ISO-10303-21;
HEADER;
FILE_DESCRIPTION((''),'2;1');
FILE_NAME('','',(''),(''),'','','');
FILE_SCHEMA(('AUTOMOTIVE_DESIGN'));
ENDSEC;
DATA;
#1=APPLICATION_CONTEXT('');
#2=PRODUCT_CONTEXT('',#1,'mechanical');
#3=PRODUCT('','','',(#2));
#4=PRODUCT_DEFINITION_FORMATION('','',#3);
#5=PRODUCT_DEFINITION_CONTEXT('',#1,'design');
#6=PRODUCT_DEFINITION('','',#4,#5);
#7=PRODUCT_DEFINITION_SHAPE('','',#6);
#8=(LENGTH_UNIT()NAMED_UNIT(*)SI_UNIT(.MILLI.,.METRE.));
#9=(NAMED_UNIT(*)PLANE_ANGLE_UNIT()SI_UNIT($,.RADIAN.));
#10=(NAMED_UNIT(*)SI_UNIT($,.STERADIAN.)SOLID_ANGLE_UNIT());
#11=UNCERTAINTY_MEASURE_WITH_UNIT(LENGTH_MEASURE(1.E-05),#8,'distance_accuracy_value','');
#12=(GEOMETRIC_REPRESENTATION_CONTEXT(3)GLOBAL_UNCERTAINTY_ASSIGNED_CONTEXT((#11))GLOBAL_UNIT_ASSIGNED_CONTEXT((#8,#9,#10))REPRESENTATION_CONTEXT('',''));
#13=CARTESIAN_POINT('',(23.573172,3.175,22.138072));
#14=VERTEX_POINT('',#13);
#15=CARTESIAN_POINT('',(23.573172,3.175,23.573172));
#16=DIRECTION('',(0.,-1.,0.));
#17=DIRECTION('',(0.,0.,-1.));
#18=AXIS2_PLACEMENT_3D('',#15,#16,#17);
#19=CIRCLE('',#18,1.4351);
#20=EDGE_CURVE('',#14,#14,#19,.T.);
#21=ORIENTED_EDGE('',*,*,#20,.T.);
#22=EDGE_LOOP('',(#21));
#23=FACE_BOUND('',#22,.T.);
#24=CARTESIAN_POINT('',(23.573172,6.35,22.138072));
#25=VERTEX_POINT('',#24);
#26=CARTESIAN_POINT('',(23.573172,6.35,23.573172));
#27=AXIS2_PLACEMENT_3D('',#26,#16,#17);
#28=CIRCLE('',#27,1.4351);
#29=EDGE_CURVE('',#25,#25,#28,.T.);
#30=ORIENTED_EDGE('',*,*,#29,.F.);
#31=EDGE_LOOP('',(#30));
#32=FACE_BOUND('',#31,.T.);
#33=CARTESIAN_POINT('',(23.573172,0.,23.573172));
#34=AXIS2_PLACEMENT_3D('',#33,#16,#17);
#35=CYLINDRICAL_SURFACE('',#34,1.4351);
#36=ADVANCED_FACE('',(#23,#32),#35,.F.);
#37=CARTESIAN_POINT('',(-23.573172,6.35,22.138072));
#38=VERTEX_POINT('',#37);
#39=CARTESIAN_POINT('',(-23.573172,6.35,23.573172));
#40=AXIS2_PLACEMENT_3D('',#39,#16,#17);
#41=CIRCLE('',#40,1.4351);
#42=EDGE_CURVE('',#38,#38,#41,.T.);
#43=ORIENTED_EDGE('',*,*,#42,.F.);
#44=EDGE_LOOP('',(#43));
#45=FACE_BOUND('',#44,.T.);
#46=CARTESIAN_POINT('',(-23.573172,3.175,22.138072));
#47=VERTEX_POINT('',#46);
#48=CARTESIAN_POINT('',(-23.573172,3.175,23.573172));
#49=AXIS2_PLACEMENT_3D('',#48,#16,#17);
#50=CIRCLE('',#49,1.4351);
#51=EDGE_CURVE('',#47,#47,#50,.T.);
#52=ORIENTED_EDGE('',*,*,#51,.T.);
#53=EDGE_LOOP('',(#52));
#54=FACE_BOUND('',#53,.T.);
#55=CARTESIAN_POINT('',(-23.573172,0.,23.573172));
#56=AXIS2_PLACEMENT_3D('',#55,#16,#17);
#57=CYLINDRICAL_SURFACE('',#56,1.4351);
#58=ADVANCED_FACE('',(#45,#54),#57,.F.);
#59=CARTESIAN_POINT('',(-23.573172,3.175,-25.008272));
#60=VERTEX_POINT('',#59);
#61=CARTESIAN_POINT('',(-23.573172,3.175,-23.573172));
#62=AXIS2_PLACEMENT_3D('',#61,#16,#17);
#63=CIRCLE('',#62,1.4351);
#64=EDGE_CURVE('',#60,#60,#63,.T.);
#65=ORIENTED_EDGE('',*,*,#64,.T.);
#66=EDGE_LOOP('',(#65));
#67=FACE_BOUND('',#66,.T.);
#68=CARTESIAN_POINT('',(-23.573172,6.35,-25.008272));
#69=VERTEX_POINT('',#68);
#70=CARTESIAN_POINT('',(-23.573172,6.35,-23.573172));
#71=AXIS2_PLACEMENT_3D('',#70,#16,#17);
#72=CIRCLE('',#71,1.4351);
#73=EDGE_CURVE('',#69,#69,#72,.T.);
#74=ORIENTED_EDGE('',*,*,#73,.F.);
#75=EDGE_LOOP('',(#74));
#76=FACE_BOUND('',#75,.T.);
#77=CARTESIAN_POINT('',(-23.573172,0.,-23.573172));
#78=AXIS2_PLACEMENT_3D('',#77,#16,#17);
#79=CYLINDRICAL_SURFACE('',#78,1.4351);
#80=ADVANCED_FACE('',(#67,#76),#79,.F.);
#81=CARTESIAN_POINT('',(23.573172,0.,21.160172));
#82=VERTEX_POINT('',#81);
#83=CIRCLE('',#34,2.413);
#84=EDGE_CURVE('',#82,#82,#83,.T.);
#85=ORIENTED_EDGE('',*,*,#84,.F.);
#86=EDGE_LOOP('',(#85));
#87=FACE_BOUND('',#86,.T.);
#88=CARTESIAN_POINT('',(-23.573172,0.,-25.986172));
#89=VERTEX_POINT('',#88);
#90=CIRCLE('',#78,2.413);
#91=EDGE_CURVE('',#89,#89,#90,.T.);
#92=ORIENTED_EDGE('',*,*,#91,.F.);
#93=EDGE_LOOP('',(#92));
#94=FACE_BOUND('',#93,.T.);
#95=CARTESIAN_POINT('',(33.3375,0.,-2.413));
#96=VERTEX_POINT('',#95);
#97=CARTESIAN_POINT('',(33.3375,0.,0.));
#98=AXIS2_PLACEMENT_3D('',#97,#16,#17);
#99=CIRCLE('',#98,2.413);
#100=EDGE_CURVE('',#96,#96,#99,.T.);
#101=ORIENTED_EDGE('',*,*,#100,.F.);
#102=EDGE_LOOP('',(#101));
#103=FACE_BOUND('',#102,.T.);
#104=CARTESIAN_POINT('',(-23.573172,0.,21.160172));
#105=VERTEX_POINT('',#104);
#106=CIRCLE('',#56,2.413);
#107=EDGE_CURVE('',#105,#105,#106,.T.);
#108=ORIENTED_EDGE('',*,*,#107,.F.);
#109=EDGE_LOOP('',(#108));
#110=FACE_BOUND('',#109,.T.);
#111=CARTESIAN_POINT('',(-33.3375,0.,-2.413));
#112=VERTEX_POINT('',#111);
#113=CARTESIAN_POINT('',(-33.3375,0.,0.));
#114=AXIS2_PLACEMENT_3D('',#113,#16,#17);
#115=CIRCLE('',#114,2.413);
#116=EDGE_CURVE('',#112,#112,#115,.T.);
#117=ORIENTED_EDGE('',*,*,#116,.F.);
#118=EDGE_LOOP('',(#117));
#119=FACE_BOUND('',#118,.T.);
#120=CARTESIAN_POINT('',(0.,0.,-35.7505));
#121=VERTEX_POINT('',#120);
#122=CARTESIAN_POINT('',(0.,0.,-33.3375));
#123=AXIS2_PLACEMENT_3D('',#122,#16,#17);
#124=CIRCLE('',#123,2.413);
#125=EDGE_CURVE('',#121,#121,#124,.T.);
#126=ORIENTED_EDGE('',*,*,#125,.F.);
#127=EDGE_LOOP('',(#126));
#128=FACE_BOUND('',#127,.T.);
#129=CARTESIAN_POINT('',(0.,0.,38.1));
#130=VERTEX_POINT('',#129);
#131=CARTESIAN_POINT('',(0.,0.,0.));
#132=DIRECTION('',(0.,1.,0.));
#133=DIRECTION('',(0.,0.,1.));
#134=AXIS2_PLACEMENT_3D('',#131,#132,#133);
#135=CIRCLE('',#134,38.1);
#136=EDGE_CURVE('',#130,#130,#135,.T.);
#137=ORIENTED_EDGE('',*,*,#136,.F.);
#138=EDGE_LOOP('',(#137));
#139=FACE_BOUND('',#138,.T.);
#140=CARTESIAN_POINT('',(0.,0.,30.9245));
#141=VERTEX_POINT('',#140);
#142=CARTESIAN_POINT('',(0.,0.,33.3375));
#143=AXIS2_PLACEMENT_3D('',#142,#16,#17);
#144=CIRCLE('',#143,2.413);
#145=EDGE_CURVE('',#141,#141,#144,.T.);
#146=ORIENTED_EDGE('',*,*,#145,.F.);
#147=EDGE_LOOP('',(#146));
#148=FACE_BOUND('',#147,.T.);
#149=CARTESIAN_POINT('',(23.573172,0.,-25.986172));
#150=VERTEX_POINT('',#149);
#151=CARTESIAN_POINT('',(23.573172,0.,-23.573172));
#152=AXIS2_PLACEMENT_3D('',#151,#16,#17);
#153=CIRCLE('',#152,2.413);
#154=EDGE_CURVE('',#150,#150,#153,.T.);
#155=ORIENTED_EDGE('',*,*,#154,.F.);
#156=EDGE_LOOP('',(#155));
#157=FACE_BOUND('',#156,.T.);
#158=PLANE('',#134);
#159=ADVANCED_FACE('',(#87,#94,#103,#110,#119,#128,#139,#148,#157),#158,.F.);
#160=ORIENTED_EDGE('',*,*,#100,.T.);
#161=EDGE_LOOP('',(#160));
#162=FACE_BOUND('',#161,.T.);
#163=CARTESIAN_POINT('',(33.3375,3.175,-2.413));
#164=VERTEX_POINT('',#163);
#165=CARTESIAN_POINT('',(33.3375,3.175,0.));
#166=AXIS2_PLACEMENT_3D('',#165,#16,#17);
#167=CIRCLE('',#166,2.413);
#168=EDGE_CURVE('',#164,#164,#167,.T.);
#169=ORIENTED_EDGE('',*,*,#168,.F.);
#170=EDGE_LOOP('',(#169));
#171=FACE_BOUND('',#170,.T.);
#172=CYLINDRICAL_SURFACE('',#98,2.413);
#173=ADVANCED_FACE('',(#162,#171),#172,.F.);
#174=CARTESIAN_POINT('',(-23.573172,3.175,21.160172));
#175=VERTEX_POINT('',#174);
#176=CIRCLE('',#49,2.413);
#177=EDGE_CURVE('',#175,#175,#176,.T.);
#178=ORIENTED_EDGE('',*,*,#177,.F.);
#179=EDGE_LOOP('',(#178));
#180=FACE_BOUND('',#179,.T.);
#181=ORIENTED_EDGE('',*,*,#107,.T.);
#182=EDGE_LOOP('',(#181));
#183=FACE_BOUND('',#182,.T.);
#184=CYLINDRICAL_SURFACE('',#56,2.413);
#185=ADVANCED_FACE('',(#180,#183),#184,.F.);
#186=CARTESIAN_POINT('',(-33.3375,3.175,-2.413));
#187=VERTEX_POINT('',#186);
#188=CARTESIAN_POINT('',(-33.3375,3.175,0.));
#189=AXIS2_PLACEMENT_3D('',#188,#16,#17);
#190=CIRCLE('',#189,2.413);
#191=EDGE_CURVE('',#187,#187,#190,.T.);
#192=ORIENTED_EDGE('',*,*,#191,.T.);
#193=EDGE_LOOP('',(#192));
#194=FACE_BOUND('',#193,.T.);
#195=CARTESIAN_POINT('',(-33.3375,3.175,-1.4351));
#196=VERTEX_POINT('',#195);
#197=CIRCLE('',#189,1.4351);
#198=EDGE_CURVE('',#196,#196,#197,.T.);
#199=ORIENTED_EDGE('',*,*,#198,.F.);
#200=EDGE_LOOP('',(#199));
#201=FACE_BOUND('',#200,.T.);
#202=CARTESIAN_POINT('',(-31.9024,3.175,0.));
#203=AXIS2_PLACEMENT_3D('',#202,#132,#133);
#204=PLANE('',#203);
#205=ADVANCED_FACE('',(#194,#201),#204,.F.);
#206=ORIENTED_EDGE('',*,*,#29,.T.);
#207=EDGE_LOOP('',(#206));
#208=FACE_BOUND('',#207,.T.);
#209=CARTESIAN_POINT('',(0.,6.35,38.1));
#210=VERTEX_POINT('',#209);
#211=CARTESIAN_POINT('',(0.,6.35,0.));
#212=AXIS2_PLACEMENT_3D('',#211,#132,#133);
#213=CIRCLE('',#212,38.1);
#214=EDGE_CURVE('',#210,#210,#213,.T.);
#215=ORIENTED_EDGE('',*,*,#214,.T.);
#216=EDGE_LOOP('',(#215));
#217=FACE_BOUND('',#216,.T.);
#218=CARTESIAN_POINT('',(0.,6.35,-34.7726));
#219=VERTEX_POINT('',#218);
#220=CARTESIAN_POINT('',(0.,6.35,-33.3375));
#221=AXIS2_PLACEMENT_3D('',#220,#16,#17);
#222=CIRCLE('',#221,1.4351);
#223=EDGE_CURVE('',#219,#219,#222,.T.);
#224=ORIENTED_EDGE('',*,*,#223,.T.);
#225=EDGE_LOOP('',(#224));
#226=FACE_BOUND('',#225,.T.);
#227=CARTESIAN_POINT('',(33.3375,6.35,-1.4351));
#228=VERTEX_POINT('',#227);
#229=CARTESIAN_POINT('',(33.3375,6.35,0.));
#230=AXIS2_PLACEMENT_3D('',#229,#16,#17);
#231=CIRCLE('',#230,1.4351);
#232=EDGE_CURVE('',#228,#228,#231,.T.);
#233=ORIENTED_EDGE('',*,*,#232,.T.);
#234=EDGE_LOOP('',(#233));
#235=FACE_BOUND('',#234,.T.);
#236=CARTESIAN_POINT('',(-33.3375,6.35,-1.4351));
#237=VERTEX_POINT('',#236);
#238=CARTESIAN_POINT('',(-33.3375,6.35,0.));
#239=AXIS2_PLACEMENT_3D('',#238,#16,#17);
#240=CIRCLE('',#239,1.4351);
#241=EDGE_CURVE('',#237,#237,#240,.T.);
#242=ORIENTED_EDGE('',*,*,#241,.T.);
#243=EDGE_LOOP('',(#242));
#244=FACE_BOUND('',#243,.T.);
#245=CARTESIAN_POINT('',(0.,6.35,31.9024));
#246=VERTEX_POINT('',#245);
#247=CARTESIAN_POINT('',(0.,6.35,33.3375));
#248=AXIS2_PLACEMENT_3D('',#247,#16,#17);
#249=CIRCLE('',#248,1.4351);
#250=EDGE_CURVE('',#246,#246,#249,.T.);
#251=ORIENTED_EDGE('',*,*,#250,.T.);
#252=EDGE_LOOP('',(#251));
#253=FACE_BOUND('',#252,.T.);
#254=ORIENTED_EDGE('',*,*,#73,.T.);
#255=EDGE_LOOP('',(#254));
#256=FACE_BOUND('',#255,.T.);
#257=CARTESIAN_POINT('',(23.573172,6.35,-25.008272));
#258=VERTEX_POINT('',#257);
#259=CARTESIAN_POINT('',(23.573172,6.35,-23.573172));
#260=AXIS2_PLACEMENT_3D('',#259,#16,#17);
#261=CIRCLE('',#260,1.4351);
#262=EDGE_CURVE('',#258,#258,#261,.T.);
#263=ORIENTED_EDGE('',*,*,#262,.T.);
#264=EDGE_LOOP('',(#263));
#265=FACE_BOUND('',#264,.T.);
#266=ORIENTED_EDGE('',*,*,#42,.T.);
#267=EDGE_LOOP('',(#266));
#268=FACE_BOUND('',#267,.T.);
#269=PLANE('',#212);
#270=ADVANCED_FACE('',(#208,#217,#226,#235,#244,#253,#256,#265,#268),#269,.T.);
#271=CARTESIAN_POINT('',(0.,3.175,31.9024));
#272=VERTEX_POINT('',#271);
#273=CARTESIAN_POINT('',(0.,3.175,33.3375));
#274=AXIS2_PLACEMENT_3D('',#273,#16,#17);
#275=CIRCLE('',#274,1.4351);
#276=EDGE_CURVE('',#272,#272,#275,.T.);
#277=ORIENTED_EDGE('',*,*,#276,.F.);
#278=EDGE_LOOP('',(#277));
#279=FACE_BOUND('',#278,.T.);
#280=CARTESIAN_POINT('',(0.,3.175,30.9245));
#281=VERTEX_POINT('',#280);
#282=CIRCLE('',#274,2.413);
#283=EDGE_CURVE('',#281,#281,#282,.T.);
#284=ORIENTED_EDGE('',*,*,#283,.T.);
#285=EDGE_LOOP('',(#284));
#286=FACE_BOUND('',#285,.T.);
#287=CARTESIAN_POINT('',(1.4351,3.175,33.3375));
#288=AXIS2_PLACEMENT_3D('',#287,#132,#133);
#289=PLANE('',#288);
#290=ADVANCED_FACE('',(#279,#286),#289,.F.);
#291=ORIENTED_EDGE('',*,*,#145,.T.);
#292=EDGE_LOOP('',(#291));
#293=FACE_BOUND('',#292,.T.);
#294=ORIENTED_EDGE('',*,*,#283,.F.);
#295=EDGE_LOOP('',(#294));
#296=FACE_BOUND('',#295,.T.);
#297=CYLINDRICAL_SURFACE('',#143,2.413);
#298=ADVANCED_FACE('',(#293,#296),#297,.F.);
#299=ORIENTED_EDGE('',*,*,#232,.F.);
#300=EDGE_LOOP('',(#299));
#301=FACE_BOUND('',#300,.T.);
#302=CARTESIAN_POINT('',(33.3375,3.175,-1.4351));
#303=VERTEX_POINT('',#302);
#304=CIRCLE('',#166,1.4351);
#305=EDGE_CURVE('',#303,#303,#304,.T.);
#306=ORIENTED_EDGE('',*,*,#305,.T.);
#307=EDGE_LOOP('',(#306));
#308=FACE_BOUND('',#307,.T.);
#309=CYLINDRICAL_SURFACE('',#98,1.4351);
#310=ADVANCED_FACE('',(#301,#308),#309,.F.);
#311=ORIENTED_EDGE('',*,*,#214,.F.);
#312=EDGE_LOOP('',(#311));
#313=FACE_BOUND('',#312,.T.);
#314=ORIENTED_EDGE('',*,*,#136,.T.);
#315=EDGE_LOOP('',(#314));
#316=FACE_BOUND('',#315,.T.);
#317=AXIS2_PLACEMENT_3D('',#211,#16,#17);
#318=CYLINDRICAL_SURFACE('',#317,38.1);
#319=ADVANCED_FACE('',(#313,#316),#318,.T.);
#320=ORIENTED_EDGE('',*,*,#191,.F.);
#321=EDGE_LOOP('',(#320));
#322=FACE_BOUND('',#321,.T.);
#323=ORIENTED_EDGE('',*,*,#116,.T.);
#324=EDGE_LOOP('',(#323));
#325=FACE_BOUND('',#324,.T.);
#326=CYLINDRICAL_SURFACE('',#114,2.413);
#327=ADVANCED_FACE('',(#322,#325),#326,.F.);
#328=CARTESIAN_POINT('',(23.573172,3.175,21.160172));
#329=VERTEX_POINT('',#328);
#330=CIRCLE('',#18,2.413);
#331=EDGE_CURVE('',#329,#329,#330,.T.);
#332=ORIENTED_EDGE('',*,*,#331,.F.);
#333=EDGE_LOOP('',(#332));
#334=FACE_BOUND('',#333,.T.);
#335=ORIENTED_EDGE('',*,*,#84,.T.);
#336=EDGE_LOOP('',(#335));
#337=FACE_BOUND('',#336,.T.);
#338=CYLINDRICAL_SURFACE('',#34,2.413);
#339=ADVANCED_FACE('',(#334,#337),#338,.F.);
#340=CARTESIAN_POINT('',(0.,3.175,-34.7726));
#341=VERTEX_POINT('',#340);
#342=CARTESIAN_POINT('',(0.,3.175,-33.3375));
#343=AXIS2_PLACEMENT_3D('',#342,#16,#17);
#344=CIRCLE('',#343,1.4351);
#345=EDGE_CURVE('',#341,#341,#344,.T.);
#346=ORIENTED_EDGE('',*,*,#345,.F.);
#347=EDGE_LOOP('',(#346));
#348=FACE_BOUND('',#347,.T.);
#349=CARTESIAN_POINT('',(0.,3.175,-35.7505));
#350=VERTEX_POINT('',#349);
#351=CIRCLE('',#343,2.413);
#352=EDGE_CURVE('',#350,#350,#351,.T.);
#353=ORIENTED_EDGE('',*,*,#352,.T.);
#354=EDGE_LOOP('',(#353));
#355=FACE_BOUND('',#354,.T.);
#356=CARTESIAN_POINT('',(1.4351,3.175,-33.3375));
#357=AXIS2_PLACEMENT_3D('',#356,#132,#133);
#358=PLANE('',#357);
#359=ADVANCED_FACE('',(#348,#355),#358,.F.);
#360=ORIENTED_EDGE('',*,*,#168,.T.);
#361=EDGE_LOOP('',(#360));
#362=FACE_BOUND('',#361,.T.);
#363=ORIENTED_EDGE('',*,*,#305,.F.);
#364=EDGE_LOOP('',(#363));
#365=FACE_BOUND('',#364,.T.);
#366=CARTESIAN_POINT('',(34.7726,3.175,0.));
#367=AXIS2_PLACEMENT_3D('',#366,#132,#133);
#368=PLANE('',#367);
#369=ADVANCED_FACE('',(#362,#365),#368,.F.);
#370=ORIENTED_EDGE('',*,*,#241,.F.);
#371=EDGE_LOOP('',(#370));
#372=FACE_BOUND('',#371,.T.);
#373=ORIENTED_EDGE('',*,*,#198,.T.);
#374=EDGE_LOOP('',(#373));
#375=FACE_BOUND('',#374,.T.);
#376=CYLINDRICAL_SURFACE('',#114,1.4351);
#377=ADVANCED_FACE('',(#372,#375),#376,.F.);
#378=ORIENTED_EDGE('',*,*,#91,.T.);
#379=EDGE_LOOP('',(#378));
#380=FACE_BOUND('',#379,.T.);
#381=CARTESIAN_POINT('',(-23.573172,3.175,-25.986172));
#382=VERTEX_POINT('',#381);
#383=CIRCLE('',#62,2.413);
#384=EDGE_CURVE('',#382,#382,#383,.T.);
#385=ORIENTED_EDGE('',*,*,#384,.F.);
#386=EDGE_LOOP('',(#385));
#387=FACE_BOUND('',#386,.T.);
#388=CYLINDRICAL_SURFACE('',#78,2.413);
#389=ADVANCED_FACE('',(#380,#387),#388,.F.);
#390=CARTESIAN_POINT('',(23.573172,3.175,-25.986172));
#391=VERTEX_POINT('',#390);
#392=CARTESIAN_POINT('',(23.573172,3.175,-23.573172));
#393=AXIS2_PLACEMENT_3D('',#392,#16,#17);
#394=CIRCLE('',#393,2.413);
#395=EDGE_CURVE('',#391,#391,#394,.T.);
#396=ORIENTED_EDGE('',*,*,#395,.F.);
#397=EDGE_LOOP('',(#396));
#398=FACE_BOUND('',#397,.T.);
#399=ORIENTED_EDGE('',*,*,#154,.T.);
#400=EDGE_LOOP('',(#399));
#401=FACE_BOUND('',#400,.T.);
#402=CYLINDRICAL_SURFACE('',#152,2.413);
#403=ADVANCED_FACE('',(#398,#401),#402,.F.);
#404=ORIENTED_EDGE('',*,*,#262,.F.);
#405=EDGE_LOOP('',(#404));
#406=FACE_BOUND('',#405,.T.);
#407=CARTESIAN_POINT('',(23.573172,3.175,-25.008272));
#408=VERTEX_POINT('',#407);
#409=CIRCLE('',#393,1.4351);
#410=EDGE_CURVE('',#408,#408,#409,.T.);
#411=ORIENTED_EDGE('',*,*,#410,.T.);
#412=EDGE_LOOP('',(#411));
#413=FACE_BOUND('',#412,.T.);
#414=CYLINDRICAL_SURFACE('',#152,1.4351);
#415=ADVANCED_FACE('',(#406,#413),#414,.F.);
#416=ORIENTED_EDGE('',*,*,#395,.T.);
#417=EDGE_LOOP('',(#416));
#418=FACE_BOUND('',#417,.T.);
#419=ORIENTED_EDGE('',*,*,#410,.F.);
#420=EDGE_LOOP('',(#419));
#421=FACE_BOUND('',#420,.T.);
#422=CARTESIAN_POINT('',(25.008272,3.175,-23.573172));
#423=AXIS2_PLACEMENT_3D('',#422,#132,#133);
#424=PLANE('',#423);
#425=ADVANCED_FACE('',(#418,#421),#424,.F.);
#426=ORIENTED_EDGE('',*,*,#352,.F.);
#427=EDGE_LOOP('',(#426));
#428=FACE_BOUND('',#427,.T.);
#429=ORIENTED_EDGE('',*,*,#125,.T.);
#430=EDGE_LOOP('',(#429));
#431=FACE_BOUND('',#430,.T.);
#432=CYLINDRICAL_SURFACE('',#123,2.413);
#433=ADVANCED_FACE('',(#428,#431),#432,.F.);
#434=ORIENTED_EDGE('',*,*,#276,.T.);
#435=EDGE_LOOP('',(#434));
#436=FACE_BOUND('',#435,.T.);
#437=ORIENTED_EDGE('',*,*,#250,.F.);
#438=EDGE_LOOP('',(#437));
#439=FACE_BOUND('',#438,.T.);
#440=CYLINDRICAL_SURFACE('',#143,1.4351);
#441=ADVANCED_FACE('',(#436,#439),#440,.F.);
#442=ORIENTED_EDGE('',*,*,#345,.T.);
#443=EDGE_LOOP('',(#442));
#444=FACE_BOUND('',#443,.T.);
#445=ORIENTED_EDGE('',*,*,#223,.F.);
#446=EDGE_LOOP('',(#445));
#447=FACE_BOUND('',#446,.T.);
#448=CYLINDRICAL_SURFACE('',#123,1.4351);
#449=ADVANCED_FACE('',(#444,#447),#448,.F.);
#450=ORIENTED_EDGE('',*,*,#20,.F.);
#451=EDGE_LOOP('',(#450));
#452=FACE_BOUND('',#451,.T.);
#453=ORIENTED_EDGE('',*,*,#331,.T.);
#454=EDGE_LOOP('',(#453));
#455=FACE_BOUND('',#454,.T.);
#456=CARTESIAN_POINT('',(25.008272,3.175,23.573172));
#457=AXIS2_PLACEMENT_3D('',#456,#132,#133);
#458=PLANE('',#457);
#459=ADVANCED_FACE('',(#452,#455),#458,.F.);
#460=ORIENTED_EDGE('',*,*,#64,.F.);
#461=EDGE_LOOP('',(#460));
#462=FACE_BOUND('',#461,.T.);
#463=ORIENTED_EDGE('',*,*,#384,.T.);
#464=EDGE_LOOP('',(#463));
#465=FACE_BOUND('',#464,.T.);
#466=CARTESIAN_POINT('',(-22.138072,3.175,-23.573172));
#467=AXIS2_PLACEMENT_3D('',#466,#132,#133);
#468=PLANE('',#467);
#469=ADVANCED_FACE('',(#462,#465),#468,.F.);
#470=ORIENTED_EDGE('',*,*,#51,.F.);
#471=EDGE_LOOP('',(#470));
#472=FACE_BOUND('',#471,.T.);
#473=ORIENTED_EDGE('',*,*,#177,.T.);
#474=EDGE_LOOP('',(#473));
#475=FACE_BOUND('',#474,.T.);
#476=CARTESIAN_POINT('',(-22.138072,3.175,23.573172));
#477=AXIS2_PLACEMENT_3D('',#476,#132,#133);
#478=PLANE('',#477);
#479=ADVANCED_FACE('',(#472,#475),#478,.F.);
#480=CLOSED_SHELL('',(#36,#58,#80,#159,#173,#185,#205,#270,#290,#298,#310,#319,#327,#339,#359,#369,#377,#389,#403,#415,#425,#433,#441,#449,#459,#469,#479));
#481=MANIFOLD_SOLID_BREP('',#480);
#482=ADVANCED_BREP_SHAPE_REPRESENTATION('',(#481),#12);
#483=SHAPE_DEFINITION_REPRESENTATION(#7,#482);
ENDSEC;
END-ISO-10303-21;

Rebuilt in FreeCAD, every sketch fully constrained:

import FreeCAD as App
import Part
import Sketcher
from FreeCAD import Vector
Q = App.Units.Quantity

doc = App.newDocument("Part")
body = doc.addObject("PartDesign::Body", "Body")

sketch1 = body.newObject("Sketcher::SketchObject", "Sketch")
sketch1.AttachmentSupport = (doc.getObject("XZ_Plane"), [""])
sketch1.MapMode = "FlatFace"
sketch1.addGeometry(Part.Circle(Vector(0, 0, 0), Vector(0, 0, 1), 38), False)
sketch1.addConstraint(Sketcher.Constraint("Coincident", 0, 3, -1, 1))
sketch1.addConstraint(Sketcher.Constraint("Diameter", 0, Q("3 in")))
pad1 = body.newObject("PartDesign::Pad", "Pad")
pad1.Profile = sketch1
pad1.Length = Q("0.25 in")
pad1.Reversed = True

sketch2 = body.newObject("Sketcher::SketchObject", "Sketch001")
sketch2.AttachmentSupport = (doc.getObject("XZ_Plane"), [""])
sketch2.MapMode = "FlatFace"
sketch2.addGeometry(Part.Circle(Vector(0, 33.3, 0), Vector(0, 0, 1), 1.4), False)
sketch2.addConstraint(Sketcher.Constraint("PointOnObject", 0, 3, -2))
sketch2.addConstraint(Sketcher.Constraint("Diameter", 0, Q("0.113 in")))
sketch2.addConstraint(Sketcher.Constraint("DistanceY", -1, 1, 0, 3, Q("1.3125 in")))
doc.recompute()
hole = body.newObject("PartDesign::Hole", "Hole")
hole.Profile = sketch2
hole.ThreadType = "None"
hole.Diameter = Q("0.113 in")
hole.DepthType = "ThroughAll"
hole.HoleCutType = "Counterbore"
hole.HoleCutDiameter = Q("0.19 in")
hole.HoleCutDepth = Q("0.125 in")
doc.recompute()

polarpattern = body.newObject("PartDesign::PolarPattern", "PolarPattern")
polarpattern.Originals = [hole]
polarpattern.Axis = (doc.getObject("Y_Axis"), [""])
polarpattern.Angle = 360
polarpattern.Occurrences = 8
body.Tip = polarpattern

doc.recompute()
